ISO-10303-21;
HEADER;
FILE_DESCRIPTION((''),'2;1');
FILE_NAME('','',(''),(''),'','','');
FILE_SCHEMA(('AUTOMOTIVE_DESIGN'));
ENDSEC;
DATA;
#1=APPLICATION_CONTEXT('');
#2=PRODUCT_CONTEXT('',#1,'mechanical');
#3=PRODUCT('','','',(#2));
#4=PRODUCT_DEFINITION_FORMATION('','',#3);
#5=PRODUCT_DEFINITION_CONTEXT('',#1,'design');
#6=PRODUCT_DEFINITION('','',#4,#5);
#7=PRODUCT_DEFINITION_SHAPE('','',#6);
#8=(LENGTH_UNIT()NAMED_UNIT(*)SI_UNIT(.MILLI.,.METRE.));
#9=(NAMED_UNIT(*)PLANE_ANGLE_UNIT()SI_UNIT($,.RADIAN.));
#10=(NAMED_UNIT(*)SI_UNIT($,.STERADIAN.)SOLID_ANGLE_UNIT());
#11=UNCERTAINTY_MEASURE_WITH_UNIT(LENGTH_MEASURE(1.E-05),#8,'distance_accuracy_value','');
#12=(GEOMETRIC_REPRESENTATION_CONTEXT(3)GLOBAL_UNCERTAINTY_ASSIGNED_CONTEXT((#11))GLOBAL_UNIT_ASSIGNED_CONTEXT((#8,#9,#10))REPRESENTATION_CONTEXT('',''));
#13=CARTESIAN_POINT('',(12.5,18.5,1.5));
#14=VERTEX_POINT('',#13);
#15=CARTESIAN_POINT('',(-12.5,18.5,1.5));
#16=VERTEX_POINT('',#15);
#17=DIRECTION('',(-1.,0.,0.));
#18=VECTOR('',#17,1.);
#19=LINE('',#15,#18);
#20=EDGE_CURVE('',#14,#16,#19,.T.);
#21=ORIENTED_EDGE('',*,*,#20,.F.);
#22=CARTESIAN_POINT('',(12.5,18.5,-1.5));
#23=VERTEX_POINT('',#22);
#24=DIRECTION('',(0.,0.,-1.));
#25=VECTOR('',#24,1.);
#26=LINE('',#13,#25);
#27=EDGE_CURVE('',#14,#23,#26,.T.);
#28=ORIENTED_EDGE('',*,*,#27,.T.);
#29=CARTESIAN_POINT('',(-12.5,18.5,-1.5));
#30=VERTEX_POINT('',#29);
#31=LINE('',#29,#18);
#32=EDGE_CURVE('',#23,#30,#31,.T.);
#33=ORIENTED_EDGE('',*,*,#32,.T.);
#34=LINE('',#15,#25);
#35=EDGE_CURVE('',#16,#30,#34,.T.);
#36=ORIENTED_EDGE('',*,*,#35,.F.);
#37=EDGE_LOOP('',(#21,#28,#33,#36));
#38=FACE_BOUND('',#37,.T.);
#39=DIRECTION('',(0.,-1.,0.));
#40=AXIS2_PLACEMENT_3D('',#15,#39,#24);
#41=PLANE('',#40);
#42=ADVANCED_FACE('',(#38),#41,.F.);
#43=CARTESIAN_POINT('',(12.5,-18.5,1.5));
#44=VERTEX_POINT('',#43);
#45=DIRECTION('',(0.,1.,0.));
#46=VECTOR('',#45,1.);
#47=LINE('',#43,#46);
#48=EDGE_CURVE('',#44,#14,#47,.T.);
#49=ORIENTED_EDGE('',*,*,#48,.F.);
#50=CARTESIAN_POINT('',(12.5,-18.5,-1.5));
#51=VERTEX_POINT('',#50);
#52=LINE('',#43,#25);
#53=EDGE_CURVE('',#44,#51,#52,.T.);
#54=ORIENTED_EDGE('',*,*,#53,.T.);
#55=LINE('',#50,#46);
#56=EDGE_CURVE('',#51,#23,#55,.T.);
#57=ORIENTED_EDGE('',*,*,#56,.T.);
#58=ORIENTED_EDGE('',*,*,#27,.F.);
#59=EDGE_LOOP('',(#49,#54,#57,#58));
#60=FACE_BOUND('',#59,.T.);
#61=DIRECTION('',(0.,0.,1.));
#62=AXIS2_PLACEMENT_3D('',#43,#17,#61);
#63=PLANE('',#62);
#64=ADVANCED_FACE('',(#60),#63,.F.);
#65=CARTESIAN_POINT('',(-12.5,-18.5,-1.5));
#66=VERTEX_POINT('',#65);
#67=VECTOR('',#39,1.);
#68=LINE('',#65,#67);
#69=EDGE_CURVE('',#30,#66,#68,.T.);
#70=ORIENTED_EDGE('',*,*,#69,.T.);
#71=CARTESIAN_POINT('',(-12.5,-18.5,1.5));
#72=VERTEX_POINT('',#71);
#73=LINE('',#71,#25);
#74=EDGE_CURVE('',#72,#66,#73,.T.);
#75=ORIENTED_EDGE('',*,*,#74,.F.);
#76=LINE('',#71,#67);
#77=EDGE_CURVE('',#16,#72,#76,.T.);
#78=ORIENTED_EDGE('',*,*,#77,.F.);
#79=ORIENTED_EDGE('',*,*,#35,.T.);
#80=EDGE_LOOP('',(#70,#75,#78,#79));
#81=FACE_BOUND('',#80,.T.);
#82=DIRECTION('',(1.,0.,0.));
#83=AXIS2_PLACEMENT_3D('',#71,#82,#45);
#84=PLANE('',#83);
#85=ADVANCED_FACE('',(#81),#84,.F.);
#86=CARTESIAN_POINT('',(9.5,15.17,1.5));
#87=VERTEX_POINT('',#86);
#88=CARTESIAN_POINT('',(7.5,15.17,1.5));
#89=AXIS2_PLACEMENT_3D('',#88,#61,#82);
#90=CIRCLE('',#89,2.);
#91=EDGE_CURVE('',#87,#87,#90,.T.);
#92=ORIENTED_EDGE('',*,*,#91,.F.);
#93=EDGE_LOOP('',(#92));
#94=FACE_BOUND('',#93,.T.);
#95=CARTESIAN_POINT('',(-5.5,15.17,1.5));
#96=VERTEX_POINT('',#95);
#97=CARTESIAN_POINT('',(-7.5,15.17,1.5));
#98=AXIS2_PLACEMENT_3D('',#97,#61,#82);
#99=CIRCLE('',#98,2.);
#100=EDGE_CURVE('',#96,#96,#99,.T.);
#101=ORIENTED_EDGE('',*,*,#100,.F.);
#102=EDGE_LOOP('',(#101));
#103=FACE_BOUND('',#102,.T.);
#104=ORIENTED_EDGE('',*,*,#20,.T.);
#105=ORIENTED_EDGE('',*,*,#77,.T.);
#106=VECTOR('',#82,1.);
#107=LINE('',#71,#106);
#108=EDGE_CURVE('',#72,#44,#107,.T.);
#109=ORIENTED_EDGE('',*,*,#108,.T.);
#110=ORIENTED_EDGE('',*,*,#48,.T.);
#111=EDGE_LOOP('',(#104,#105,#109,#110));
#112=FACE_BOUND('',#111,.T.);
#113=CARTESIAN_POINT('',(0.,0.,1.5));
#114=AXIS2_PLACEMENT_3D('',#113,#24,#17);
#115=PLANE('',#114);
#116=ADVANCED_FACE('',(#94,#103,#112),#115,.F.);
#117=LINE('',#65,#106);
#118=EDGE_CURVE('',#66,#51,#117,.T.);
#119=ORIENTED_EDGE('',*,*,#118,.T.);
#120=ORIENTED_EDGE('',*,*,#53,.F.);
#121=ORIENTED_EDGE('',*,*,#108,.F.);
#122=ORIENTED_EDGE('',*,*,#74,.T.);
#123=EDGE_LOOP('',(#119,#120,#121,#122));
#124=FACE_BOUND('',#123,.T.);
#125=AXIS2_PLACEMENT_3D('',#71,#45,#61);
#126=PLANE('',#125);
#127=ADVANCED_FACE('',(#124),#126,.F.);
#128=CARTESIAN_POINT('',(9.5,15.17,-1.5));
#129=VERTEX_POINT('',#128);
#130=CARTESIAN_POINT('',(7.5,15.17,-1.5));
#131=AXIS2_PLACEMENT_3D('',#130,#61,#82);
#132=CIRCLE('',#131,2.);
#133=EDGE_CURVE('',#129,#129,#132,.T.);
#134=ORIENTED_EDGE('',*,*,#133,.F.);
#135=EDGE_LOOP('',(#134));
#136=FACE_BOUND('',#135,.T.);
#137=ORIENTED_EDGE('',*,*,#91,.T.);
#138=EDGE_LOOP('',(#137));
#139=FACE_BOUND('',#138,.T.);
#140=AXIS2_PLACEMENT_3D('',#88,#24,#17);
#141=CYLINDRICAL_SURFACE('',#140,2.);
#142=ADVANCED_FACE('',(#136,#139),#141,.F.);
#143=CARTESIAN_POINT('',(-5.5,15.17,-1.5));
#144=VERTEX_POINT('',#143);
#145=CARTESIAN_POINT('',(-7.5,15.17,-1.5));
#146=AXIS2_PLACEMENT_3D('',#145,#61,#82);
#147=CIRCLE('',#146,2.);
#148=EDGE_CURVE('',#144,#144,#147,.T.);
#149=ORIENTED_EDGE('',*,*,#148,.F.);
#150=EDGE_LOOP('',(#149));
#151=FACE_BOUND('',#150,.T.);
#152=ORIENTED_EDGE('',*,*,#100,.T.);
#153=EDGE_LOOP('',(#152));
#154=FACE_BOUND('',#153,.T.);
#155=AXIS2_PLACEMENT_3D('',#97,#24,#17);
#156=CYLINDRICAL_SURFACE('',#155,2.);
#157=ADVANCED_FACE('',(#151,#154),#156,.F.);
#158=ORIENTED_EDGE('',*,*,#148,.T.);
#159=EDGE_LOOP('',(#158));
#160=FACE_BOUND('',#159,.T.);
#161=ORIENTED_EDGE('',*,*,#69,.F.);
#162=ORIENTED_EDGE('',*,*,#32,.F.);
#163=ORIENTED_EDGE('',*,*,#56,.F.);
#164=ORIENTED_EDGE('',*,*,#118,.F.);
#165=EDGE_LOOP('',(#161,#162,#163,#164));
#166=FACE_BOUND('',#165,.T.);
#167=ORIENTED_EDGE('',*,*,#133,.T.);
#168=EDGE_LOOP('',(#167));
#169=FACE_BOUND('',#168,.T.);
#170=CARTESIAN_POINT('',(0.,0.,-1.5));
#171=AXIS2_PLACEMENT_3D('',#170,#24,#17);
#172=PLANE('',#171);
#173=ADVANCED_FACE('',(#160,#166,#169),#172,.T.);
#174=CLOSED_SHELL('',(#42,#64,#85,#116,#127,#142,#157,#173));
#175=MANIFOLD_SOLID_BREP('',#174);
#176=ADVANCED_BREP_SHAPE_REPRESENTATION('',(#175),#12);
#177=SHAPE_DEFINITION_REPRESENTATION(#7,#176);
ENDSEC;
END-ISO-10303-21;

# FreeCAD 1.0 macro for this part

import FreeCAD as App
import Part
import Sketcher

V = App.Vector
Q = App.Units.Quantity


def add_polygon(sketch, points):
    """Adds a closed chain of lines whose ends are joined by coincident constraints."""
    first, n = sketch.GeometryCount, len(points)
    for a, b in zip(points, points[1:] + points[:1]):
        sketch.addGeometry(Part.LineSegment(App.Vector(*a, 0), App.Vector(*b, 0)), False)
    for i in range(n):
        sketch.addConstraint(Sketcher.Constraint("Coincident", first + i, 2, first + (i + 1) % n, 1))

doc = App.newDocument("Part")
body = doc.addObject("PartDesign::Body", "Body")

# Sketch on XY plane
sketch1 = body.newObject("Sketcher::SketchObject", "Sketch")
sketch1.AttachmentSupport = (doc.getObject("XY_Plane"), [""])
sketch1.MapMode = "FlatFace"
add_polygon(sketch1, [(-12.5, 18.5), (-12.5, -18.5), (12.5, -18.5), (12.5, 18.5)])  # lines 0-3
sketch1.addGeometry(Part.Circle(V(-7.5, 15.2, 0), V(0, 0, 1), 2), False)  # 4
sketch1.addGeometry(Part.Circle(V(7.5, 15.2, 0), V(0, 0, 1), 2), False)  # 5
sketch1.addConstraint(Sketcher.Constraint("Vertical", 0))
sketch1.addConstraint(Sketcher.Constraint("Horizontal", 1))
sketch1.addConstraint(Sketcher.Constraint("Vertical", 2))
sketch1.addConstraint(Sketcher.Constraint("Horizontal", 3))
sketch1.addConstraint(Sketcher.Constraint("Equal", 4, 5))
sketch1.addConstraint(Sketcher.Constraint("Symmetric", 0, 2, 2, 2, -1, 1))
sketch1.addConstraint(Sketcher.Constraint("Symmetric", 4, 3, 5, 3, -2))
sketch1.addConstraint(Sketcher.Constraint("Diameter", 4, Q("4 mm")))
sketch1.addConstraint(Sketcher.Constraint("DistanceX", 1, 1, 1, 2, Q("25 mm")))
sketch1.addConstraint(Sketcher.Constraint("DistanceY", 0, 2, 0, 1, Q("37 mm")))
sketch1.addConstraint(Sketcher.Constraint("DistanceX", 4, 3, 5, 3, Q("15 mm")))
sketch1.addConstraint(Sketcher.Constraint("DistanceY", -1, 1, 4, 3, Q("15.17 mm")))
pad1 = body.newObject("PartDesign::Pad", "Pad")
pad1.Profile = sketch1
pad1.Length = 3
pad1.Midplane = True

doc.recompute()
